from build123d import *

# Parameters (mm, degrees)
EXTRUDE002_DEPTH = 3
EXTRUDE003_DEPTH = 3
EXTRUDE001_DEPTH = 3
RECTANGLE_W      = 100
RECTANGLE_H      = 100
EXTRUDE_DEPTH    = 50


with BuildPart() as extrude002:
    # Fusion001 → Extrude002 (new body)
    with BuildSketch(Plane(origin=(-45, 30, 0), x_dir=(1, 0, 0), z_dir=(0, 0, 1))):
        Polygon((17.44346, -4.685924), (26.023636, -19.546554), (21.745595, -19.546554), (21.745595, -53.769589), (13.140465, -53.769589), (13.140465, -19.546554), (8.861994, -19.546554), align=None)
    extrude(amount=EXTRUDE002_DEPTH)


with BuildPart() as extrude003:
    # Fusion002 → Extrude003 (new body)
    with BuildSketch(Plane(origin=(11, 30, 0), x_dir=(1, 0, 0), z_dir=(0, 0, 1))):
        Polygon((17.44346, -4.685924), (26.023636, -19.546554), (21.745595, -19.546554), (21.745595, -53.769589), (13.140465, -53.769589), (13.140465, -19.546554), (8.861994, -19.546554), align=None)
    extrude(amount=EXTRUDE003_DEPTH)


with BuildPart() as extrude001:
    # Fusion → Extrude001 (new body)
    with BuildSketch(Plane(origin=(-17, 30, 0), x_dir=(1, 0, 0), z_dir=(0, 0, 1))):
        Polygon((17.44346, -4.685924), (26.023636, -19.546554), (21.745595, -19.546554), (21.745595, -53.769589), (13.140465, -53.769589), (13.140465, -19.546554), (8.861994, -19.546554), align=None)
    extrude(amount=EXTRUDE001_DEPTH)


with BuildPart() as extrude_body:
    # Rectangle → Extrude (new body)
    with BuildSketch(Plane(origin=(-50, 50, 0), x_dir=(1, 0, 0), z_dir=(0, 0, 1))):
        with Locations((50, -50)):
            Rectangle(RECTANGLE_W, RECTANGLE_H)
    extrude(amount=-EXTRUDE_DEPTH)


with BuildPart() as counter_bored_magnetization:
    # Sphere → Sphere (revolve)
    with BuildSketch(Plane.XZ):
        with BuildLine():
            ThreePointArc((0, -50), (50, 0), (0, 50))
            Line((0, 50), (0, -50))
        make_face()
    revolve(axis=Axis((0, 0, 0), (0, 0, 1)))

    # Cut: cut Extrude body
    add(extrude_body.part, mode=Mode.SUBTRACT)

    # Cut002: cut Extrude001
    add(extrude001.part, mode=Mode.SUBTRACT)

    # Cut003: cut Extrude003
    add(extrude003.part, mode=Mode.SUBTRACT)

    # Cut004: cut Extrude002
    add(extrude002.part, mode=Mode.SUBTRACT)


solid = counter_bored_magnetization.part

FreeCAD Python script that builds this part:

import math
import FreeCAD as App
import Part
import Sketcher

doc = App.newDocument("Part")
body = doc.addObject("PartDesign::Body", "Body")

sketch1 = body.newObject("Sketcher::SketchObject", "Sketch")
sketch1.AttachmentSupport = (doc.getObject("XY_Plane"), [""])
sketch1.MapMode = "FlatFace"
sketch1.addGeometry([
    Part.LineSegment(App.Vector(-19, 10.5, 0), App.Vector(-27.6, 25.3, 0)),
    Part.LineSegment(App.Vector(-27.6, 25.3, 0), App.Vector(-36.1, 10.5, 0)),
    Part.LineSegment(App.Vector(-36.1, 10.5, 0), App.Vector(-31.9, 10.5, 0)),
    Part.LineSegment(App.Vector(-31.9, 10.5, 0), App.Vector(-31.9, -23.8, 0)),
    Part.LineSegment(App.Vector(-31.9, -23.8, 0), App.Vector(-23.3, -23.8, 0)),
    Part.LineSegment(App.Vector(-23.3, -23.8, 0), App.Vector(-23.3, 10.5, 0)),
    Part.LineSegment(App.Vector(-23.3, 10.5, 0), App.Vector(-19, 10.5, 0)),
], False)
sketch1.addConstraint([
    Sketcher.Constraint("Coincident", 0, 2, 1, 1),
    Sketcher.Constraint("Coincident", 1, 2, 2, 1),
    Sketcher.Constraint("Coincident", 2, 2, 3, 1),
    Sketcher.Constraint("Coincident", 3, 2, 4, 1),
    Sketcher.Constraint("Coincident", 4, 2, 5, 1),
    Sketcher.Constraint("Coincident", 5, 2, 6, 1),
    Sketcher.Constraint("Coincident", 6, 2, 0, 1),
    Sketcher.Constraint("Horizontal", 2),
    Sketcher.Constraint("Vertical", 3),
    Sketcher.Constraint("Horizontal", 4),
    Sketcher.Constraint("Vertical", 5),
    Sketcher.Constraint("Horizontal", 6),
    Sketcher.Constraint("Horizontal", 2, 2, 5, 2),
    Sketcher.Constraint("DistanceX", 2, 1, 2, 2, 4.278471),
    Sketcher.Constraint("DistanceX", 4, 1, 4, 2, 8.60513),
    Sketcher.Constraint("DistanceX", 6, 1, 6, 2, 4.278041),
    Sketcher.Constraint("Distance", 0, 17.159771),
    Sketcher.Constraint("DistanceY", 3, 2, 3, 1, 34.223035),
    Sketcher.Constraint("DistanceX", 0, 2, -1, 1, 27.55654),
    Sketcher.Constraint("DistanceY", 3, 2, -1, 1, 23.769589),
    Sketcher.Constraint("DistanceY", 1, 2, 0, 2, 14.86063),
])
pad1 = body.newObject("PartDesign::Pad", "Pad")
pad1.Profile = sketch1
pad1.Length = 3
body2 = doc.addObject("PartDesign::Body", "Body001")

sketch2 = body2.newObject("Sketcher::SketchObject", "Sketch001")
sketch2.AttachmentSupport = (doc.getObject("XY_Plane001"), [""])
sketch2.MapMode = "FlatFace"
sketch2.addGeometry([
    Part.LineSegment(App.Vector(37, 10.5, 0), App.Vector(28.4, 25.3, 0)),
    Part.LineSegment(App.Vector(28.4, 25.3, 0), App.Vector(19.9, 10.5, 0)),
    Part.LineSegment(App.Vector(19.9, 10.5, 0), App.Vector(24.1, 10.5, 0)),
    Part.LineSegment(App.Vector(24.1, 10.5, 0), App.Vector(24.1, -23.8, 0)),
    Part.LineSegment(App.Vector(24.1, -23.8, 0), App.Vector(32.7, -23.8, 0)),
    Part.LineSegment(App.Vector(32.7, -23.8, 0), App.Vector(32.7, 10.5, 0)),
    Part.LineSegment(App.Vector(32.7, 10.5, 0), App.Vector(37, 10.5, 0)),
], False)
sketch2.addConstraint([
    Sketcher.Constraint("Coincident", 0, 2, 1, 1),
    Sketcher.Constraint("Coincident", 1, 2, 2, 1),
    Sketcher.Constraint("Coincident", 2, 2, 3, 1),
    Sketcher.Constraint("Coincident", 3, 2, 4, 1),
    Sketcher.Constraint("Coincident", 4, 2, 5, 1),
    Sketcher.Constraint("Coincident", 5, 2, 6, 1),
    Sketcher.Constraint("Coincident", 6, 2, 0, 1),
    Sketcher.Constraint("Horizontal", 2),
    Sketcher.Constraint("Vertical", 3),
    Sketcher.Constraint("Horizontal", 4),
    Sketcher.Constraint("Vertical", 5),
    Sketcher.Constraint("Horizontal", 6),
    Sketcher.Constraint("Horizontal", 2, 2, 5, 2),
    Sketcher.Constraint("DistanceX", 2, 1, 2, 2, 4.278471),
    Sketcher.Constraint("DistanceX", 4, 1, 4, 2, 8.60513),
    Sketcher.Constraint("DistanceX", 6, 1, 6, 2, 4.278041),
    Sketcher.Constraint("Distance", 0, 17.159771),
    Sketcher.Constraint("DistanceY", 3, 2, 3, 1, 34.223035),
    Sketcher.Constraint("DistanceX", -1, 1, 0, 2, 28.44346),
    Sketcher.Constraint("DistanceY", 3, 2, -1, 1, 23.769589),
    Sketcher.Constraint("DistanceY", 1, 2, 0, 2, 14.86063),
])
pad2 = body2.newObject("PartDesign::Pad", "Pad001")
pad2.Profile = sketch2
pad2.Length = 3
body3 = doc.addObject("PartDesign::Body", "Body002")

sketch3 = body3.newObject("Sketcher::SketchObject", "Sketch002")
sketch3.AttachmentSupport = (doc.getObject("XY_Plane002"), [""])
sketch3.MapMode = "FlatFace"
sketch3.addGeometry([
    Part.LineSegment(App.Vector(9, 10.5, 0), App.Vector(0.4, 25.3, 0)),
    Part.LineSegment(App.Vector(0.4, 25.3, 0), App.Vector(-8.1, 10.5, 0)),
    Part.LineSegment(App.Vector(-8.1, 10.5, 0), App.Vector(-3.9, 10.5, 0)),
    Part.LineSegment(App.Vector(-3.9, 10.5, 0), App.Vector(-3.9, -23.8, 0)),
    Part.LineSegment(App.Vector(-3.9, -23.8, 0), App.Vector(4.7, -23.8, 0)),
    Part.LineSegment(App.Vector(4.7, -23.8, 0), App.Vector(4.7, 10.5, 0)),
    Part.LineSegment(App.Vector(4.7, 10.5, 0), App.Vector(9, 10.5, 0)),
], False)
sketch3.addConstraint([
    Sketcher.Constraint("Coincident", 0, 2, 1, 1),
    Sketcher.Constraint("Coincident", 1, 2, 2, 1),
    Sketcher.Constraint("Coincident", 2, 2, 3, 1),
    Sketcher.Constraint("Coincident", 3, 2, 4, 1),
    Sketcher.Constraint("Coincident", 4, 2, 5, 1),
    Sketcher.Constraint("Coincident", 5, 2, 6, 1),
    Sketcher.Constraint("Coincident", 6, 2, 0, 1),
    Sketcher.Constraint("Horizontal", 2),
    Sketcher.Constraint("Vertical", 3),
    Sketcher.Constraint("Horizontal", 4),
    Sketcher.Constraint("Vertical", 5),
    Sketcher.Constraint("Horizontal", 6),
    Sketcher.Constraint("Horizontal", 2, 2, 5, 2),
    Sketcher.Constraint("DistanceX", 2, 1, 2, 2, 4.278471),
    Sketcher.Constraint("DistanceX", 4, 1, 4, 2, 8.60513),
    Sketcher.Constraint("DistanceX", 6, 1, 6, 2, 4.278041),
    Sketcher.Constraint("Distance", 0, 17.159771),
    Sketcher.Constraint("DistanceY", 3, 2, 3, 1, 34.223035),
    Sketcher.Constraint("DistanceX", -1, 1, 0, 2, 0.44346),
    Sketcher.Constraint("DistanceY", 3, 2, -1, 1, 23.769589),
    Sketcher.Constraint("DistanceY", 1, 2, 0, 2, 14.86063),
])
pad3 = body3.newObject("PartDesign::Pad", "Pad002")
pad3.Profile = sketch3
pad3.Length = 3
body4 = doc.addObject("PartDesign::Body", "Body003")

sketch4 = body4.newObject("Sketcher::SketchObject", "Sketch003")
sketch4.AttachmentSupport = (doc.getObject("XY_Plane003"), [""])
sketch4.MapMode = "FlatFace"
sketch4.addGeometry([
    Part.LineSegment(App.Vector(-50, 50, 0), App.Vector(-50, -50, 0)),
    Part.LineSegment(App.Vector(-50, -50, 0), App.Vector(50, -50, 0)),
    Part.LineSegment(App.Vector(50, -50, 0), App.Vector(50, 50, 0)),
    Part.LineSegment(App.Vector(50, 50, 0), App.Vector(-50, 50, 0)),
], False)
sketch4.addConstraint([
    Sketcher.Constraint("Coincident", 0, 2, 1, 1),
    Sketcher.Constraint("Coincident", 1, 2, 2, 1),
    Sketcher.Constraint("Coincident", 2, 2, 3, 1),
    Sketcher.Constraint("Coincident", 3, 2, 0, 1),
    Sketcher.Constraint("Vertical", 0),
    Sketcher.Constraint("Horizontal", 1),
    Sketcher.Constraint("Vertical", 2),
    Sketcher.Constraint("Horizontal", 3),
    Sketcher.Constraint("Symmetric", 0, 2, 2, 2, -1, 1),
    Sketcher.Constraint("Equal", 3, 0),
    Sketcher.Constraint("DistanceX", 1, 1, 1, 2, 100.0),
])
pad4 = body4.newObject("PartDesign::Pad", "Pad003")
pad4.Profile = sketch4
pad4.Length = 50
pad4.Reversed = True
body5 = doc.addObject("PartDesign::Body", "Body004")

sketch5 = body5.newObject("Sketcher::SketchObject", "Sketch004")
sketch5.AttachmentSupport = (doc.getObject("XZ_Plane004"), [""])
sketch5.MapMode = "FlatFace"
sketch5.addGeometry([
    Part.ArcOfCircle(Part.Circle(App.Vector(0, 0, 0), App.Vector(0, 0, 1), 50), math.radians(-90), math.radians(90)),
    Part.LineSegment(App.Vector(0, 50, 0), App.Vector(0, -50, 0)),
], False)
sketch5.addConstraint([
    Sketcher.Constraint("Coincident", 0, 1, 1, 2),
    Sketcher.Constraint("Coincident", 1, 1, 0, 2),
    Sketcher.Constraint("Vertical", 1),
    Sketcher.Constraint("Coincident", 0, 3, -1, 1),
    Sketcher.Constraint("PointOnObject", 0, 1, -2),
    Sketcher.Constraint("Radius", 0, 50.0),
])
revolution = body5.newObject("PartDesign::Revolution", "Revolution")
revolution.Profile = sketch5
revolution.ReferenceAxis = (sketch5, ["V_Axis"])
revolution.Angle = 360
doc.recompute()

boolean = body5.newObject("PartDesign::Boolean", "Boolean")
boolean.Type = "Cut"
boolean.addObjects([body4])
doc.recompute()

boolean2 = body5.newObject("PartDesign::Boolean", "Boolean001")
boolean2.Type = "Cut"
boolean2.addObjects([body3])
doc.recompute()

boolean3 = body5.newObject("PartDesign::Boolean", "Boolean002")
boolean3.Type = "Cut"
boolean3.addObjects([body2])
doc.recompute()

boolean4 = body5.newObject("PartDesign::Boolean", "Boolean003")
boolean4.Type = "Cut"
boolean4.addObjects([body])

doc.recompute()
